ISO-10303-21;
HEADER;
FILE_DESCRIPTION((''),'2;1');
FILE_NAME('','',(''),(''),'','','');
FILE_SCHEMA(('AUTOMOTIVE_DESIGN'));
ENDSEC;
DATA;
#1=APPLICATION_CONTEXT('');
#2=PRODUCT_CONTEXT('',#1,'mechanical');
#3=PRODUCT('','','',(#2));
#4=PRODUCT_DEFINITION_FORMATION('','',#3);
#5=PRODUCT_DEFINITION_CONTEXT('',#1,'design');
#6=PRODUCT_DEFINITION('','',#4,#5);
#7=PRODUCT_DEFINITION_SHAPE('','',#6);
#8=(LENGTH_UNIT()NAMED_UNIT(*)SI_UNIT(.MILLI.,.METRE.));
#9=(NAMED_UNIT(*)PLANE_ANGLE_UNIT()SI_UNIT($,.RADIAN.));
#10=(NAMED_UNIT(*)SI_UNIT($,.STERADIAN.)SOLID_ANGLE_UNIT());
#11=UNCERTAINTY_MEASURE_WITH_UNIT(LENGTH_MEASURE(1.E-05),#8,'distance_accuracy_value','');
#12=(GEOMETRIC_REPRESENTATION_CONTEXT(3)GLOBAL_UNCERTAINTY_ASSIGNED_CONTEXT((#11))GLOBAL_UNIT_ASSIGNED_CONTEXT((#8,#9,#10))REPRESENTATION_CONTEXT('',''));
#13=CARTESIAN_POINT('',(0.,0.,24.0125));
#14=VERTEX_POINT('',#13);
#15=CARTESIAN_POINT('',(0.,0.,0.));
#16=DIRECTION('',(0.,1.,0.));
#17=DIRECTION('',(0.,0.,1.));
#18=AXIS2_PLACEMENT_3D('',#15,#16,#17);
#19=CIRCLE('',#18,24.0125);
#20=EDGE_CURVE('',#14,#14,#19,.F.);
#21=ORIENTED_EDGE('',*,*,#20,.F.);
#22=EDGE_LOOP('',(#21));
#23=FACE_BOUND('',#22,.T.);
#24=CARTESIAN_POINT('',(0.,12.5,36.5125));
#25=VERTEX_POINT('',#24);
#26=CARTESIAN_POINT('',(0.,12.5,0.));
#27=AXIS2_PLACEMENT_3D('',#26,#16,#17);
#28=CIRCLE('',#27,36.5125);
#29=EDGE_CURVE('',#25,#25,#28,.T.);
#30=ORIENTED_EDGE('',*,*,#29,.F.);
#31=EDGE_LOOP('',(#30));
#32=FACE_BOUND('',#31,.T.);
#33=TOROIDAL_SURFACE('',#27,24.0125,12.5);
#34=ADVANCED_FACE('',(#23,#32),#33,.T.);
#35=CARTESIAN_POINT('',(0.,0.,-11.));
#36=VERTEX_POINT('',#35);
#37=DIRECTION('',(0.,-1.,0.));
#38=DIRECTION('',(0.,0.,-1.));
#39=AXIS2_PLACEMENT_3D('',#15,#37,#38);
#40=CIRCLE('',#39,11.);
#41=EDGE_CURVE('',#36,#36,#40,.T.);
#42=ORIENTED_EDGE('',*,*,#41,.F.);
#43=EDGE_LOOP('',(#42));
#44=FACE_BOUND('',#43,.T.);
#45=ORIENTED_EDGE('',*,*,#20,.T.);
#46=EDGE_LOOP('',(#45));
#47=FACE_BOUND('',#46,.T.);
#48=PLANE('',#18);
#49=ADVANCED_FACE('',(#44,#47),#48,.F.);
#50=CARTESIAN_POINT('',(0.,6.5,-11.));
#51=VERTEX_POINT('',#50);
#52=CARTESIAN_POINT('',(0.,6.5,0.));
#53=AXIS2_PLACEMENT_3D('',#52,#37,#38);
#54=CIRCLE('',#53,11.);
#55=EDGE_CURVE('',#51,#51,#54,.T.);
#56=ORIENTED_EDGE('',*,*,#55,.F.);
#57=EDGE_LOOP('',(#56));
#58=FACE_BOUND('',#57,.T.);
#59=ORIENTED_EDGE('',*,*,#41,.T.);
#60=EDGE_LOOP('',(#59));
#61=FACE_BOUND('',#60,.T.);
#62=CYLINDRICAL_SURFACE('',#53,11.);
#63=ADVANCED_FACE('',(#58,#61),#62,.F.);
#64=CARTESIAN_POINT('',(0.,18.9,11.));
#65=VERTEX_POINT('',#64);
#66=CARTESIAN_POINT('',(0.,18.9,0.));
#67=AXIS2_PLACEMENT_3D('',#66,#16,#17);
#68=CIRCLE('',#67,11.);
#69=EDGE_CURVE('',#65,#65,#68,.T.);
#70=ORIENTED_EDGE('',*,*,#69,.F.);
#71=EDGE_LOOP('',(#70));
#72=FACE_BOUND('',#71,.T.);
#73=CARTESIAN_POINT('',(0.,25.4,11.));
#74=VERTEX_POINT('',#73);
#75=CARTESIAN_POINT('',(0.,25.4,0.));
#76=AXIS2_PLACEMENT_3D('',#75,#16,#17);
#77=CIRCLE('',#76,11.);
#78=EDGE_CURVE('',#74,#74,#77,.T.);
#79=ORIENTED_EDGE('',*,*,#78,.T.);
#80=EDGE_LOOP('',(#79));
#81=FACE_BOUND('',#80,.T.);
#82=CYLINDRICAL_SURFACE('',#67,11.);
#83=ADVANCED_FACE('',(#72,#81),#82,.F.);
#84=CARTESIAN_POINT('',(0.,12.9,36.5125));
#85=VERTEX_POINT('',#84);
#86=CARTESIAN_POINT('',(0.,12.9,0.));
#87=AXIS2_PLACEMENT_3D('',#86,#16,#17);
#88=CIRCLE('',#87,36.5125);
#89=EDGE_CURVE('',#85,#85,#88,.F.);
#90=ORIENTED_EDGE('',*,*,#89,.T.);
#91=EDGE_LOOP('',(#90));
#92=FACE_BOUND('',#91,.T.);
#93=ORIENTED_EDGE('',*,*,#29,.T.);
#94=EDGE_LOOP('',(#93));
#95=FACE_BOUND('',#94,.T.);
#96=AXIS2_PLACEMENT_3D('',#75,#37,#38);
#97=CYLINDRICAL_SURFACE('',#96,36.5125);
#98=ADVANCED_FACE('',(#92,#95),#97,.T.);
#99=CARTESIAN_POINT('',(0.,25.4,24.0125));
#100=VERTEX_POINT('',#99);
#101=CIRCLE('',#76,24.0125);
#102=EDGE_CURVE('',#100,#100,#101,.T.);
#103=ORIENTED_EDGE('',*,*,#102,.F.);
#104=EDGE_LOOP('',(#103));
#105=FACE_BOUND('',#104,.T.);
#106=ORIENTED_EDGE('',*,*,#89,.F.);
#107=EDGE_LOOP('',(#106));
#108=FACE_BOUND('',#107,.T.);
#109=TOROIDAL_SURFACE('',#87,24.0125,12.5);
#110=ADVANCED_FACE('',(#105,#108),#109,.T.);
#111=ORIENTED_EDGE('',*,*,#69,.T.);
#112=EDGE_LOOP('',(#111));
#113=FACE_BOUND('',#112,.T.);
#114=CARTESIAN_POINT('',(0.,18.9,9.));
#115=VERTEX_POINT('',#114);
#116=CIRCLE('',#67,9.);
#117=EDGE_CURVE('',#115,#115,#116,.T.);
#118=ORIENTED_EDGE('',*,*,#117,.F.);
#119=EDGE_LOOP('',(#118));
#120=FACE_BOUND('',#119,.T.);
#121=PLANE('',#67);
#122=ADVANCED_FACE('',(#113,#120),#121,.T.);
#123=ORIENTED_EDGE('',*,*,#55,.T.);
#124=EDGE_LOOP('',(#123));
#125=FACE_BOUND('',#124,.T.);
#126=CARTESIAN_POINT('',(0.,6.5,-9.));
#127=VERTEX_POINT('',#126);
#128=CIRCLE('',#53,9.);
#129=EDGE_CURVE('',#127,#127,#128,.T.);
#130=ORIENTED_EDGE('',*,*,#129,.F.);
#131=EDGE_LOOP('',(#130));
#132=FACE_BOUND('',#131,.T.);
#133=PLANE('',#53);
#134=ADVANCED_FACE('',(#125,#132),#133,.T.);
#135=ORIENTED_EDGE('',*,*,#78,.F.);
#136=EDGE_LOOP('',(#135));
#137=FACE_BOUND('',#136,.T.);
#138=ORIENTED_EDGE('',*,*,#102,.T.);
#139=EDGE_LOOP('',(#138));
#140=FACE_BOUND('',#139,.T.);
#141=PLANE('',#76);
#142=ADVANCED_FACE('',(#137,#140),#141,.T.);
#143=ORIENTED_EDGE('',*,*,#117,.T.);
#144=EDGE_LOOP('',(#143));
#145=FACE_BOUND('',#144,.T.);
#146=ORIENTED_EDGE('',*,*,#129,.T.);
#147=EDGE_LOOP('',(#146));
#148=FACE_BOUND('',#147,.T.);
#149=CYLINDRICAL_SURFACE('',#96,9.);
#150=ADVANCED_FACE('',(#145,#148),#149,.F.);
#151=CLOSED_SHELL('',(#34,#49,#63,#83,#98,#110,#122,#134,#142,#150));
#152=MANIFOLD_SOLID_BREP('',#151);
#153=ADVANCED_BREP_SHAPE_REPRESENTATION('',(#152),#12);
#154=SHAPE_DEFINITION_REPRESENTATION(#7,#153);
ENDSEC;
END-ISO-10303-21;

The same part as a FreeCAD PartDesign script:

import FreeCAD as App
import Part
import Sketcher
from FreeCAD import Vector
Q = App.Units.Quantity


def edges_at(feature, points):
    """Names of the edges that pass closest to the given points."""
    edges = feature.Shape.Edges
    near = lambda p: min(range(len(edges)), key=lambda i: edges[i].distToShape(Part.Vertex(*p))[0])
    return sorted({f"Edge{near(p) + 1}" for p in points})

doc = App.newDocument("Part")
params = doc.addObject("Spreadsheet::Sheet", "Params")
for row, (alias, value) in enumerate([
    ("pad1_length", "25.4 mm"),
    ("fillet_radius", "12.5 mm"),
    ("sketch2_diameter", "22 mm"),
    ("pocket1_length", "6.5 mm"),
    ("sketch3_diameter", "22 mm"),
    ("pocket2_length", "6.5 mm"),
    ("sketch4_diameter", "18 mm"),
], start=1):
    params.set(f"A{row}", alias)
    params.set(f"B{row}", "=" + value)
    params.setAlias(f"B{row}", alias)

body = doc.addObject("PartDesign::Body", "Body")

# Sketch on XZ plane
sketch1 = body.newObject("Sketcher::SketchObject", "Sketch")
sketch1.AttachmentSupport = (doc.getObject("XZ_Plane"), [""])
sketch1.MapMode = "FlatFace"
sketch1.addGeometry(Part.Circle(Vector(0, 0, 0), Vector(0, 0, 1), 37), False)
sketch1.addConstraint(Sketcher.Constraint("Coincident", 0, 3, -1, 1))
sketch1.addConstraint(Sketcher.Constraint("Diameter", 0, Q("73.025 mm")))
pad1 = body.newObject("PartDesign::Pad", "Pad")
pad1.Profile = sketch1
pad1.setExpression("Length", "Params.pad1_length")
pad1.Reversed = True
doc.recompute()

fillet = body.newObject("PartDesign::Fillet", "Fillet")
fillet.Base = (pad1, edges_at(pad1, [(-36.513, 0, 0), (-36.513, 25.4, 0)]))
fillet.setExpression("Radius", "Params.fillet_radius")

# Sketch on XZ plane
sketch2 = body.newObject("Sketcher::SketchObject", "Sketch001")
sketch2.AttachmentSupport = (doc.getObject("XZ_Plane"), [""])
sketch2.MapMode = "FlatFace"
sketch2.AttachmentOffset = App.Placement(Vector(0, 0, -25.4), App.Rotation())
sketch2.addGeometry(Part.Circle(Vector(0, 0, 0), Vector(0, 0, 1), 11), False)
sketch2.addConstraint(Sketcher.Constraint("Coincident", 0, 3, -1, 1))
sketch2.addConstraint(Sketcher.Constraint("Diameter", 0, Q("22 mm")))
sketch2.setExpression("Constraints[1]", "Params.sketch2_diameter")
pocket1 = body.newObject("PartDesign::Pocket", "Pocket")
pocket1.Profile = sketch2
pocket1.setExpression("Length", "Params.pocket1_length")
pocket1.Reversed = True

# Sketch on XZ plane
sketch3 = body.newObject("Sketcher::SketchObject", "Sketch002")
sketch3.AttachmentSupport = (doc.getObject("XZ_Plane"), [""])
sketch3.MapMode = "FlatFace"
sketch3.addGeometry(Part.Circle(Vector(0, 0, 0), Vector(0, 0, 1), 11), False)
sketch3.addConstraint(Sketcher.Constraint("Coincident", 0, 3, -1, 1))
sketch3.addConstraint(Sketcher.Constraint("Diameter", 0, Q("22 mm")))
sketch3.setExpression("Constraints[1]", "Params.sketch3_diameter")
pocket2 = body.newObject("PartDesign::Pocket", "Pocket001")
pocket2.Profile = sketch3
pocket2.setExpression("Length", "Params.pocket2_length")

# Sketch on XZ plane
sketch4 = body.newObject("Sketcher::SketchObject", "Sketch003")
sketch4.AttachmentSupport = (doc.getObject("XZ_Plane"), [""])
sketch4.MapMode = "FlatFace"
sketch4.AttachmentOffset = App.Placement(Vector(0, 0, -6.5), App.Rotation())
sketch4.addGeometry(Part.Circle(Vector(0, 0, 0), Vector(0, 0, 1), 9), False)
sketch4.addConstraint(Sketcher.Constraint("Coincident", 0, 3, -1, 1))
sketch4.addConstraint(Sketcher.Constraint("Diameter", 0, Q("18 mm")))
sketch4.setExpression("Constraints[1]", "Params.sketch4_diameter")
pocket3 = body.newObject("PartDesign::Pocket", "Pocket002")
pocket3.Profile = sketch4
pocket3.Type = "ThroughAll"

doc.recompute()
